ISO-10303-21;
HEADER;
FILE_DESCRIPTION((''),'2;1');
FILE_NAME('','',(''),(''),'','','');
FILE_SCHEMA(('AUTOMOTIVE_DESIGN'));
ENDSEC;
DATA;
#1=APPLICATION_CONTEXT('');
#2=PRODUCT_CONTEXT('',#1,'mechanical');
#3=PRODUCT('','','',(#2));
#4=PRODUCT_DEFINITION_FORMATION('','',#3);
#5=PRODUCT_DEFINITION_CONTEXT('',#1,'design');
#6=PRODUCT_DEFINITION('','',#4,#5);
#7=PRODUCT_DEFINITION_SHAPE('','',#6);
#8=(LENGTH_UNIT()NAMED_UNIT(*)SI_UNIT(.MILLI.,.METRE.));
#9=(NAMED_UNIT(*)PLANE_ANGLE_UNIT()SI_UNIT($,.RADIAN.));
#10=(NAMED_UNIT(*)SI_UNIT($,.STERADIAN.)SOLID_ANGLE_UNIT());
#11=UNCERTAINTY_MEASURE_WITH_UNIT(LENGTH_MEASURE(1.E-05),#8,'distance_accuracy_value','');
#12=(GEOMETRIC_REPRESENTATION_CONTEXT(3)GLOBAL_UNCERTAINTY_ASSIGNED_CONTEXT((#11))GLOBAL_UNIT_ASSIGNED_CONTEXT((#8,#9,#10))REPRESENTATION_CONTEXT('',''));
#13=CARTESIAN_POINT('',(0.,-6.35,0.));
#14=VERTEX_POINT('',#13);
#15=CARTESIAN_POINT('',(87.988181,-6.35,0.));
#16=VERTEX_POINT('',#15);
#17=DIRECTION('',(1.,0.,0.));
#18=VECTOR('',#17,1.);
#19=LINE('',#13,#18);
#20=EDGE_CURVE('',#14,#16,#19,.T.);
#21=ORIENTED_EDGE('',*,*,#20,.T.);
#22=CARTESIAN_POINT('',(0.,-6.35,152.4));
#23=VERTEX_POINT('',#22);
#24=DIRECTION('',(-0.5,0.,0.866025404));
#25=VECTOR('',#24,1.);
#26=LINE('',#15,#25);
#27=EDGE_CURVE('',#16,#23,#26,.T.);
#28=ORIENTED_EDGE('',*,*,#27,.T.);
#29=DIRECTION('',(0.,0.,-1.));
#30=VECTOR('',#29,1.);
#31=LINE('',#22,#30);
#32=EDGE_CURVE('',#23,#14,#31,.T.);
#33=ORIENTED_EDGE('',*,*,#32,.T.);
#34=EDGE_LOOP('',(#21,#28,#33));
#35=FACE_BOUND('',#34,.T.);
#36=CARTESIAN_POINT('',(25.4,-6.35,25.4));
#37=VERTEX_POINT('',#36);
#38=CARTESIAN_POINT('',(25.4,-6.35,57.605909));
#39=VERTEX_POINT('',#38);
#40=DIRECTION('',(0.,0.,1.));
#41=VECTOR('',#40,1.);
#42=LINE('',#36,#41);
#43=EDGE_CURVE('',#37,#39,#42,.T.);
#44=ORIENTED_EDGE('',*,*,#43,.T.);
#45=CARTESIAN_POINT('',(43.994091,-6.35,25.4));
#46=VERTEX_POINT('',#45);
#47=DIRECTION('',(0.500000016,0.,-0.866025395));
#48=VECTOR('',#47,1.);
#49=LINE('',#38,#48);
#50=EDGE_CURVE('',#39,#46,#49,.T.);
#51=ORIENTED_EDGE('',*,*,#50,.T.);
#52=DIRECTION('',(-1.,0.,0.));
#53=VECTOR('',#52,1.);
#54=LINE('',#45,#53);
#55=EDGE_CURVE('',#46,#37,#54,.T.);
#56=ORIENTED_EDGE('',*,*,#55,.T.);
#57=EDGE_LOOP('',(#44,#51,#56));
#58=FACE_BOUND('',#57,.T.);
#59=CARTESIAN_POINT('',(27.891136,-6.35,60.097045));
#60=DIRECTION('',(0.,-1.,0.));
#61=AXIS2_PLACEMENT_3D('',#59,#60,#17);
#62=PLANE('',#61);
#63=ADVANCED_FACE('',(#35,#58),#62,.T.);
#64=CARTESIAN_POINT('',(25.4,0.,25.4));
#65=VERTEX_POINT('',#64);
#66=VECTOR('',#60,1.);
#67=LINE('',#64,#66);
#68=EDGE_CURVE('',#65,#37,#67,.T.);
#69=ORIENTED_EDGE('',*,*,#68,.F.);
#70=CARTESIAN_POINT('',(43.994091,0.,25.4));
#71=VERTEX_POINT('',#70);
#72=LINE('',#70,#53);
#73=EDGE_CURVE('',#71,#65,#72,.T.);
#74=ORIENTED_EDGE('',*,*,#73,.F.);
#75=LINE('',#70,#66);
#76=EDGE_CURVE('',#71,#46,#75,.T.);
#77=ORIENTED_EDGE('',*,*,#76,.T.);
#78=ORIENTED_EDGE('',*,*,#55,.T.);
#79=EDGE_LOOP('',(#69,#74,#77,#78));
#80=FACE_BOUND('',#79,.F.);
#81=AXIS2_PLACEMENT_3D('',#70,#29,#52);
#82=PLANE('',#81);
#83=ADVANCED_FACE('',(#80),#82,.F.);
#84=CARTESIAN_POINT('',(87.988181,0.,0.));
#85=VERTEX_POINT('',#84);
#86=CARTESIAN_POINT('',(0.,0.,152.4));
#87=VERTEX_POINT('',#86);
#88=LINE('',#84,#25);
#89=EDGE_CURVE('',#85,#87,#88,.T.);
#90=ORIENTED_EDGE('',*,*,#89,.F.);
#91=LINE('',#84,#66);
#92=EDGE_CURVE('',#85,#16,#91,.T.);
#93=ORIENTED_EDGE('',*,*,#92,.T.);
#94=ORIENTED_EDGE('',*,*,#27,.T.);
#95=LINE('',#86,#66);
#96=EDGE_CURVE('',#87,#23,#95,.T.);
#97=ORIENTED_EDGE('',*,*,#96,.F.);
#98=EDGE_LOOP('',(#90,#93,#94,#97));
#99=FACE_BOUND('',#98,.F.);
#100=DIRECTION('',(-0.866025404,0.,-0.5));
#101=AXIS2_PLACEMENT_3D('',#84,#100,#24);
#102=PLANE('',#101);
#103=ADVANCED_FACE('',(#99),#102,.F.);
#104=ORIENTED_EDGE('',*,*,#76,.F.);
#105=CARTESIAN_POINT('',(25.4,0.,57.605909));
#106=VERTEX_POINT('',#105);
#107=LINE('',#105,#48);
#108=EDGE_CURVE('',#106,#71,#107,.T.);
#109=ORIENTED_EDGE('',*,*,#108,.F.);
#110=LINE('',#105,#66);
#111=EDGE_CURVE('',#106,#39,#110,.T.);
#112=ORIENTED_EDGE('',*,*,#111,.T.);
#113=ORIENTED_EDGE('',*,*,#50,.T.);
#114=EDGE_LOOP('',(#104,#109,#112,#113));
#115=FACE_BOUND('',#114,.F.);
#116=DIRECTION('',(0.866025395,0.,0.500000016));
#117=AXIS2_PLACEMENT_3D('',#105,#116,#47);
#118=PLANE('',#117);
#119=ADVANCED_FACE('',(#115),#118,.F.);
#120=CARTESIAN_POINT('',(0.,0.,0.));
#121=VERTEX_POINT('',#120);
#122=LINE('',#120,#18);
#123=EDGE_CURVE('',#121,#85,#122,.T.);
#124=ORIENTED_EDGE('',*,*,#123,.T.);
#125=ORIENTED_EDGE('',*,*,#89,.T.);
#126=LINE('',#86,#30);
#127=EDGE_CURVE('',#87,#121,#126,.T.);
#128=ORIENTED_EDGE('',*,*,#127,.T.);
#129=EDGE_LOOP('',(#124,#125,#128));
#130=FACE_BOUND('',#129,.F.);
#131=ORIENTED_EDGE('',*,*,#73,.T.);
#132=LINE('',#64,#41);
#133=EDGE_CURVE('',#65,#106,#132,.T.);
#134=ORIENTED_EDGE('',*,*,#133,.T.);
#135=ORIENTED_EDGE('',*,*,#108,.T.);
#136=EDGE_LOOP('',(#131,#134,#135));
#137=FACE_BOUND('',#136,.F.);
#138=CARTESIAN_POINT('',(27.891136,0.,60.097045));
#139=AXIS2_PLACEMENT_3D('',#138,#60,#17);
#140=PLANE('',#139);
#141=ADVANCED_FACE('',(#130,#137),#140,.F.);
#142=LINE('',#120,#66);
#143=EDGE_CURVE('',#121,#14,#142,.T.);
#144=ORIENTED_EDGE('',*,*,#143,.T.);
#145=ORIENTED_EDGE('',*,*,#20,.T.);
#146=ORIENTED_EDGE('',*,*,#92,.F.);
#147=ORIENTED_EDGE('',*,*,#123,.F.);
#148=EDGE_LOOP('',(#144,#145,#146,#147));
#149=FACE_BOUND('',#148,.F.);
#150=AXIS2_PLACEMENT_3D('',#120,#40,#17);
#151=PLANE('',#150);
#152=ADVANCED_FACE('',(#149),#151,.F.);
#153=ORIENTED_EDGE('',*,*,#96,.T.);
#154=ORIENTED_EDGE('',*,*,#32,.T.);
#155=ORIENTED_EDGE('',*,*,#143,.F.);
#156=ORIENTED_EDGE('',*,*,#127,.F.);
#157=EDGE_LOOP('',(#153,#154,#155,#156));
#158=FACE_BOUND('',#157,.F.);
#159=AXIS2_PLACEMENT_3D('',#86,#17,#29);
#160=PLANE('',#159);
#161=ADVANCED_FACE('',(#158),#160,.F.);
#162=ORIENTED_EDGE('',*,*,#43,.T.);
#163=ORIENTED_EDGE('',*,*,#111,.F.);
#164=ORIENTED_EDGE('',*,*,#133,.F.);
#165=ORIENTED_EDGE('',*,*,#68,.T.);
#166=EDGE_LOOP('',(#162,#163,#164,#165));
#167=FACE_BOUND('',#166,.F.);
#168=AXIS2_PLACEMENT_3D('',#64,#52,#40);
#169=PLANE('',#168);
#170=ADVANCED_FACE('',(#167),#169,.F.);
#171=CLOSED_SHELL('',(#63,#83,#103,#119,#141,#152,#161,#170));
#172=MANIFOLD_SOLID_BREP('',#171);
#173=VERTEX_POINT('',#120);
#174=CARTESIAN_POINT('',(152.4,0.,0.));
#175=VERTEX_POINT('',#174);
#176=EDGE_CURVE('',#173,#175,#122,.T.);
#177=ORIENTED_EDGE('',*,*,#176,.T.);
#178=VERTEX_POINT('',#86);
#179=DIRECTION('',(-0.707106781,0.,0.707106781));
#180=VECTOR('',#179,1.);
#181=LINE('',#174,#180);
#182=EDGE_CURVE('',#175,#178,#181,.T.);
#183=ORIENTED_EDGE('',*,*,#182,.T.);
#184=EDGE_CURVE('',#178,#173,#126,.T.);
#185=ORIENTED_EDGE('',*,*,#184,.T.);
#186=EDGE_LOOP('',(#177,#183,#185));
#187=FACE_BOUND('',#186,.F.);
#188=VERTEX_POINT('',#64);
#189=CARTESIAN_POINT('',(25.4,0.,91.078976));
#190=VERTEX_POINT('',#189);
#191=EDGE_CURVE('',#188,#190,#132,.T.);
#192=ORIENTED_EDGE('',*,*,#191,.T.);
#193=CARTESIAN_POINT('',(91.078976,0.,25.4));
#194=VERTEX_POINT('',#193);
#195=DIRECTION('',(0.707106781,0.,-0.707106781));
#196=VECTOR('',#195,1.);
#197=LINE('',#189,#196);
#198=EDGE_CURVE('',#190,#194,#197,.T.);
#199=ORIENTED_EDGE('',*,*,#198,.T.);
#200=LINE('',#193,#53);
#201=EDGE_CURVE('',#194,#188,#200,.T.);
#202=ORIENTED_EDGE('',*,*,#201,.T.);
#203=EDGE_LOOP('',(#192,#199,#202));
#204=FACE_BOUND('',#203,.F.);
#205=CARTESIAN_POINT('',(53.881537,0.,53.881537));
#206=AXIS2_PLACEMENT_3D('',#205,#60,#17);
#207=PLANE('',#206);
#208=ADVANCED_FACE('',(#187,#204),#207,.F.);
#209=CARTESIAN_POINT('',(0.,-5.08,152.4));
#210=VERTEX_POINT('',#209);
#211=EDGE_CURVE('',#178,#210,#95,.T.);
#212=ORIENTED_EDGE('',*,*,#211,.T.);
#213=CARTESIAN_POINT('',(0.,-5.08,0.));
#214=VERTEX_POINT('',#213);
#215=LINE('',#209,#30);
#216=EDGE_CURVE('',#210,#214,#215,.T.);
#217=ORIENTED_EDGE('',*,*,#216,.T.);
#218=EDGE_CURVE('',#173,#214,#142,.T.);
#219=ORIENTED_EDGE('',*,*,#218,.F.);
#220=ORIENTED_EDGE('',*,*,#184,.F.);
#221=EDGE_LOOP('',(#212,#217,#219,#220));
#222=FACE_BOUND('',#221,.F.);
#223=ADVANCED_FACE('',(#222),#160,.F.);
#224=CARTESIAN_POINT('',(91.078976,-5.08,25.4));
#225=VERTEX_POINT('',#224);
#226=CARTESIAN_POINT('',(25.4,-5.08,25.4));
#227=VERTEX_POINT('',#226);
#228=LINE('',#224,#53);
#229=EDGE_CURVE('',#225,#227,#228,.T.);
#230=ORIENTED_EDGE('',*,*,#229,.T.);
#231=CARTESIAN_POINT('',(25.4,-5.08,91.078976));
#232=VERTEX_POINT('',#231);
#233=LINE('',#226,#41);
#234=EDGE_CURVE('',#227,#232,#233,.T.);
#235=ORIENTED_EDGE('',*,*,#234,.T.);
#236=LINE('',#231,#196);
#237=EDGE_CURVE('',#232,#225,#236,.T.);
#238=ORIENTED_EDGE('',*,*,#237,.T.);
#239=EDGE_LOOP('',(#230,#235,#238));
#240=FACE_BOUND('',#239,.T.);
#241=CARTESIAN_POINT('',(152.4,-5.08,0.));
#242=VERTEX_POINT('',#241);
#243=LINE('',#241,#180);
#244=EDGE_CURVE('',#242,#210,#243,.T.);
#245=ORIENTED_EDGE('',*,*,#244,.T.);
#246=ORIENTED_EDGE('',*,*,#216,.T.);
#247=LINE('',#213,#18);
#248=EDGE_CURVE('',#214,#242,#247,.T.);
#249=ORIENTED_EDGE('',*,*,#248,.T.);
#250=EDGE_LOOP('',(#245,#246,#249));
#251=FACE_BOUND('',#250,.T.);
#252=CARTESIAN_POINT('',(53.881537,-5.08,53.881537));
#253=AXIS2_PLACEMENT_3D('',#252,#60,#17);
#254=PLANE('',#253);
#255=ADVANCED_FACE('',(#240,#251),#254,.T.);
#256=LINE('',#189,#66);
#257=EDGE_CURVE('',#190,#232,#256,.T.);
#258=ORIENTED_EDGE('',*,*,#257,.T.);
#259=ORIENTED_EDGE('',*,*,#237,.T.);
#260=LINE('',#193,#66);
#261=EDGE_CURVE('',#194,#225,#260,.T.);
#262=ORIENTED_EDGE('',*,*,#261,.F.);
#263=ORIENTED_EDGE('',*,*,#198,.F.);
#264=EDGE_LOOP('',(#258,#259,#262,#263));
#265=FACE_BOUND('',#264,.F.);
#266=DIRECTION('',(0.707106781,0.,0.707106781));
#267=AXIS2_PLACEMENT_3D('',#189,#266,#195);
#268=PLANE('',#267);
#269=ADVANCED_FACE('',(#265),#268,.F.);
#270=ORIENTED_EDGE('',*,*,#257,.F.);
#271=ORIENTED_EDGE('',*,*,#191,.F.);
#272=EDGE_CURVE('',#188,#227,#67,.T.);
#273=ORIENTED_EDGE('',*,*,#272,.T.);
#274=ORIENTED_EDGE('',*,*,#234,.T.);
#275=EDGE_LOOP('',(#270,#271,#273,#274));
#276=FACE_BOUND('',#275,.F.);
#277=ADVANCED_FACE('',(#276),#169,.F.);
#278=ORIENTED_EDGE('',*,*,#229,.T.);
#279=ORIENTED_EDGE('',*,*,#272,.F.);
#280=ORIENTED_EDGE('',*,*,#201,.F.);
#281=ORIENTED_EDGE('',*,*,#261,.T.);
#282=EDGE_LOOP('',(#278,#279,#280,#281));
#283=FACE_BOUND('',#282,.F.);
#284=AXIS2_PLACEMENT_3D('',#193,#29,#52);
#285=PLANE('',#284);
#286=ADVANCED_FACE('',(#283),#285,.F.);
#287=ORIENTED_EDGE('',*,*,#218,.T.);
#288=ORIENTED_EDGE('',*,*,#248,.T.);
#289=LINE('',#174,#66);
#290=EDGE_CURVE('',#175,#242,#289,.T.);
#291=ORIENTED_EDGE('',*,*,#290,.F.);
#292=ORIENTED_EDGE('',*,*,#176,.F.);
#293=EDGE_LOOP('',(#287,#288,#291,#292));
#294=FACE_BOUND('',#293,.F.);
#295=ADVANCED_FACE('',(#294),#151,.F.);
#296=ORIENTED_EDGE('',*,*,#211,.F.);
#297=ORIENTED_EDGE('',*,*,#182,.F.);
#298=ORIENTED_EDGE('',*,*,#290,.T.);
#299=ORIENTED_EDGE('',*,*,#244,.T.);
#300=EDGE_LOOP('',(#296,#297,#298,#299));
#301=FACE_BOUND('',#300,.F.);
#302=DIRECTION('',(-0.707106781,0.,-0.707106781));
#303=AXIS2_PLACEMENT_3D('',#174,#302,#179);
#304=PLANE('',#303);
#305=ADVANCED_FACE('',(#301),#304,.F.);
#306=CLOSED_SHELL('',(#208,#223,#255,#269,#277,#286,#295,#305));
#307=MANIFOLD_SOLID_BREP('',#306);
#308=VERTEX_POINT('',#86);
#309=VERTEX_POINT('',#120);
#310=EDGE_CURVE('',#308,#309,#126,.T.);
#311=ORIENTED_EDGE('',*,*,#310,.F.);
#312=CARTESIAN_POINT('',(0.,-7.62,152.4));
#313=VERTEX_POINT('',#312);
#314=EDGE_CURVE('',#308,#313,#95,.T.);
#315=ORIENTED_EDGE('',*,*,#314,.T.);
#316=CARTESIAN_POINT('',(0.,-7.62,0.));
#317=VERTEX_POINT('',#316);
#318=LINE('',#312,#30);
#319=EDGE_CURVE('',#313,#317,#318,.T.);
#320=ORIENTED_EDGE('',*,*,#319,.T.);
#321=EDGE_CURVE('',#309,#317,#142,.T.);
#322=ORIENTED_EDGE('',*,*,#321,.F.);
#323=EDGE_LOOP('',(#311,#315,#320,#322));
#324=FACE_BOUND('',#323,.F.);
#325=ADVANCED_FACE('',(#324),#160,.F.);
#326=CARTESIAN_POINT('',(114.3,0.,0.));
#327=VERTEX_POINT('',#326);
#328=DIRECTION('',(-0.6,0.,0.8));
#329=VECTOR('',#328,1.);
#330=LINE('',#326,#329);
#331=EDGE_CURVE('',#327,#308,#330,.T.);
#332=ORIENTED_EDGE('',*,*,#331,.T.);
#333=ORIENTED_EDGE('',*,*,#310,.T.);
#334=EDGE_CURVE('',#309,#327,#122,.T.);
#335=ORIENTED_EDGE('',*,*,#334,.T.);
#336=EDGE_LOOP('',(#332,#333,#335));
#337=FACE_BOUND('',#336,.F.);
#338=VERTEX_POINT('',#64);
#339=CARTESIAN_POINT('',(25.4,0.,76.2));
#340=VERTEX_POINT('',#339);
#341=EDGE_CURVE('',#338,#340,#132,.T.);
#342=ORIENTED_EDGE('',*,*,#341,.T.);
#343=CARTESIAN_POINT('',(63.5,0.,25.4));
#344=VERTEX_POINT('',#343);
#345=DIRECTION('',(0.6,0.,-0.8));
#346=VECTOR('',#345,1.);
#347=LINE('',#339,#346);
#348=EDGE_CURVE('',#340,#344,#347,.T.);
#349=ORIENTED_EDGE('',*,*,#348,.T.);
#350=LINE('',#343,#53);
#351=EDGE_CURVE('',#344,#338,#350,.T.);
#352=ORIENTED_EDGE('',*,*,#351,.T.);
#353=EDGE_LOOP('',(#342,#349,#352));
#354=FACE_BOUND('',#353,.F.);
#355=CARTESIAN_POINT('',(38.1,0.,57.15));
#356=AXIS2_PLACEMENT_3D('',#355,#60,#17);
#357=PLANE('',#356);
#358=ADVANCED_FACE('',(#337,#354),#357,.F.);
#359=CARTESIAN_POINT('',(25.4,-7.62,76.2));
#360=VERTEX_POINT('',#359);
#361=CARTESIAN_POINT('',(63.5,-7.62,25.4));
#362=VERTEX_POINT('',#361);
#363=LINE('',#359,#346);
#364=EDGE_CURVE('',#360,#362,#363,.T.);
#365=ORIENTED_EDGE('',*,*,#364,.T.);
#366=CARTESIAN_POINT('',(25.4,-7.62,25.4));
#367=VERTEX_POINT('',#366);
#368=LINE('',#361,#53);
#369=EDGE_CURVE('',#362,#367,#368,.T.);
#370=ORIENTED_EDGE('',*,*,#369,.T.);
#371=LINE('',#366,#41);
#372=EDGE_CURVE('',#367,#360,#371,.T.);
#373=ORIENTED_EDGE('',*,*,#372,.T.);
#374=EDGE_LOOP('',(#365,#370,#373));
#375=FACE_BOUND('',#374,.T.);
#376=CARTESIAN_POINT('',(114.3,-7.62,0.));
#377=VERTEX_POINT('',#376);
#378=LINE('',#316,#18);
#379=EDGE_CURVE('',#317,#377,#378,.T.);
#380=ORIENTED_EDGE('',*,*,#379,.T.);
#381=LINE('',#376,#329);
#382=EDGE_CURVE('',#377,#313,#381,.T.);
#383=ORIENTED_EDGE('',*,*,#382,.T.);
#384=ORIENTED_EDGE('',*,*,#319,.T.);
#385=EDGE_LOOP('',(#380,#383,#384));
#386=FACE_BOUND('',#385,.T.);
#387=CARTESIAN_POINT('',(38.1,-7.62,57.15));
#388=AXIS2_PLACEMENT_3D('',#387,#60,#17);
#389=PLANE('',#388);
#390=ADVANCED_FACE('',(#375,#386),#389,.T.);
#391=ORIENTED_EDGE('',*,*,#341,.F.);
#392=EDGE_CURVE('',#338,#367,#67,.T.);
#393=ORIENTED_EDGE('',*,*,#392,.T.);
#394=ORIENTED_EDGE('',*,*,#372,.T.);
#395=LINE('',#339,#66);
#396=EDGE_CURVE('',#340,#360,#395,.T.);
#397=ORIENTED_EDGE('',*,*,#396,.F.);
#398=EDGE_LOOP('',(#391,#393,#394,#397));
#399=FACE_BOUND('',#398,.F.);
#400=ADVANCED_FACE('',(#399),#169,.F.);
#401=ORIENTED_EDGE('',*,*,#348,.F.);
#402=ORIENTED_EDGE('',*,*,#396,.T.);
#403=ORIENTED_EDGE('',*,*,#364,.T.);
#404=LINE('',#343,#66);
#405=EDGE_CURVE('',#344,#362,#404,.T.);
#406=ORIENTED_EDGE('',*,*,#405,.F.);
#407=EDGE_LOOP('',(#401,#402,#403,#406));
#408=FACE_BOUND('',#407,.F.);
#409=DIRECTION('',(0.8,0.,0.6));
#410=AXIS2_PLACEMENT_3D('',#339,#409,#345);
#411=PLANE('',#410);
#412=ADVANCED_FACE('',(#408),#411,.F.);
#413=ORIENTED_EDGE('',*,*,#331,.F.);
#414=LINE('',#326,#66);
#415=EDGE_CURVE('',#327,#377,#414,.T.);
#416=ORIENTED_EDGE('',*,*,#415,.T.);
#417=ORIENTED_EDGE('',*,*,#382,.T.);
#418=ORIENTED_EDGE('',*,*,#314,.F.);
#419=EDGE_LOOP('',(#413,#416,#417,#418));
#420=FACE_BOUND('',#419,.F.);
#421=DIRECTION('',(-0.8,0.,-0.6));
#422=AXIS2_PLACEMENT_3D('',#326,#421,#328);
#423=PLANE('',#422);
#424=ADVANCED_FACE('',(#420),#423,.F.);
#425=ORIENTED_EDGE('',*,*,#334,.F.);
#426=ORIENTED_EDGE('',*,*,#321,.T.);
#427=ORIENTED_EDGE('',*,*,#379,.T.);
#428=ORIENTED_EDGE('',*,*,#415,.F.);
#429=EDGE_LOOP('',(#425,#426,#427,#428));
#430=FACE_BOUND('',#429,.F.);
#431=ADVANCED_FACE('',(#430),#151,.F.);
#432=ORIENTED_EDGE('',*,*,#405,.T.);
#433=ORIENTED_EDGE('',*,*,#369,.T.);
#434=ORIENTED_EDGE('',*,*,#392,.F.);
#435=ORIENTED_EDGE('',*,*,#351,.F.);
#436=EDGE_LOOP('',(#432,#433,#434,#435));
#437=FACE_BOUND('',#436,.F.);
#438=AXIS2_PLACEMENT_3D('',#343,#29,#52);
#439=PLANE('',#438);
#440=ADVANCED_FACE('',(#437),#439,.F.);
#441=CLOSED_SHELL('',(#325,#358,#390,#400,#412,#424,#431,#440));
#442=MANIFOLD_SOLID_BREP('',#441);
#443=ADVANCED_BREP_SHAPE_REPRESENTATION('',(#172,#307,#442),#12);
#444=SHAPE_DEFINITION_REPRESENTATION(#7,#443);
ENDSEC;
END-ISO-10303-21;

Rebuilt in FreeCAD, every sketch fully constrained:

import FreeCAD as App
import Part
import Sketcher
Q = App.Units.Quantity

doc = App.newDocument("Part")
params = doc.addObject("Spreadsheet::Sheet", "Params")
for row, (alias, value) in enumerate([
    ("sketch1_width", "6 in"),
    ("pad1_length", "0.2 in"),
    ("sketch2_height", "6 in"),
    ("pad2_length", "0.25 in"),
    ("sketch3_height", "6 in"),
    ("sketch3_height2", "2 in"),
    ("sketch3_width", "4.5 in"),
    ("pad3_length", "0.3 in"),
], start=1):
    params.set(f"A{row}", alias)
    params.set(f"B{row}", "=" + value)
    params.setAlias(f"B{row}", alias)

body = doc.addObject("PartDesign::Body", "Body")

sketch1 = doc.addObject("Sketcher::SketchObject", "Sketch")
body.addObject(sketch1)
sketch1.AttachmentSupport = (doc.XZ_Plane, [""])
sketch1.MapMode = "FlatFace"
sketch1.addGeometry([
    Part.LineSegment(App.Vector(0, 152, 0), App.Vector(0, 0, 0)),
    Part.LineSegment(App.Vector(0, 0, 0), App.Vector(152, 0, 0)),
    Part.LineSegment(App.Vector(152, 0, 0), App.Vector(0, 152, 0)),
    Part.LineSegment(App.Vector(25, 91, 0), App.Vector(91, 25, 0)),
    Part.LineSegment(App.Vector(91, 25, 0), App.Vector(25, 25, 0)),
    Part.LineSegment(App.Vector(25, 25, 0), App.Vector(25, 91, 0)),
], False)
sketch1.addConstraint([
    Sketcher.Constraint("Coincident", 0, 2, 1, 1),
    Sketcher.Constraint("Coincident", 1, 2, 2, 1),
    Sketcher.Constraint("Coincident", 2, 2, 0, 1),
    Sketcher.Constraint("Coincident", 3, 2, 4, 1),
    Sketcher.Constraint("Coincident", 4, 2, 5, 1),
    Sketcher.Constraint("Coincident", 5, 2, 3, 1),
    Sketcher.Constraint("Vertical", 0),
    Sketcher.Constraint("Horizontal", 1),
    Sketcher.Constraint("Horizontal", 4),
    Sketcher.Constraint("Vertical", 5),
    Sketcher.Constraint("Coincident", 0, 2, -1, 1),
    Sketcher.Constraint("Parallel", 2, 3),
    Sketcher.Constraint("Equal", 1, 0),
    Sketcher.Constraint("DistanceX", 1, 1, 1, 2, Q("6 in")),
    Sketcher.Constraint("DistanceY", -1, 1, 3, 2, Q("1 in")),
    Sketcher.Constraint("DistanceX", -1, 1, 4, 2, Q("1 in")),
    Sketcher.Constraint("Distance", 3, Q("92.884099 mm")),
])
sketch1.setExpression("Constraints[13]", "Params.sketch1_width")
pad1 = doc.addObject("PartDesign::Pad", "Pad")
body.addObject(pad1)
pad1.Profile = sketch1
pad1.setExpression("Length", "Params.pad1_length")
body2 = doc.addObject("PartDesign::Body", "Body001")

sketch2 = doc.addObject("Sketcher::SketchObject", "Sketch001")
body2.addObject(sketch2)
sketch2.AttachmentSupport = (doc.getObject("XZ_Plane001"), [""])
sketch2.MapMode = "FlatFace"
sketch2.addGeometry([
    Part.LineSegment(App.Vector(0, 152, 0), App.Vector(0, 0, 0)),
    Part.LineSegment(App.Vector(0, 0, 0), App.Vector(88, 0, 0)),
    Part.LineSegment(App.Vector(88, 0, 0), App.Vector(0, 152, 0)),
    Part.LineSegment(App.Vector(25, 58, 0), App.Vector(44, 25, 0)),
    Part.LineSegment(App.Vector(44, 25, 0), App.Vector(25, 25, 0)),
    Part.LineSegment(App.Vector(25, 25, 0), App.Vector(25, 58, 0)),
], False)
sketch2.addConstraint([
    Sketcher.Constraint("Coincident", 0, 2, 1, 1),
    Sketcher.Constraint("Coincident", 1, 2, 2, 1),
    Sketcher.Constraint("Coincident", 2, 2, 0, 1),
    Sketcher.Constraint("Coincident", 3, 2, 4, 1),
    Sketcher.Constraint("Coincident", 4, 2, 5, 1),
    Sketcher.Constraint("Coincident", 5, 2, 3, 1),
    Sketcher.Constraint("Vertical", 0),
    Sketcher.Constraint("Horizontal", 1),
    Sketcher.Constraint("Horizontal", 4),
    Sketcher.Constraint("Vertical", 5),
    Sketcher.Constraint("Coincident", 0, 2, -1, 1),
    Sketcher.Constraint("Parallel", 2, 3),
    Sketcher.Constraint("DistanceY", 0, 2, 0, 1, Q("6 in")),
    Sketcher.Constraint("DistanceY", -1, 1, 3, 2, Q("1 in")),
    Sketcher.Constraint("DistanceX", -1, 1, 4, 2, Q("1 in")),
    Sketcher.Constraint("Angle", 2, Q("120 deg")),
    Sketcher.Constraint("DistanceX", 4, 2, 4, 1, Q("18.594091 mm")),
])
sketch2.setExpression("Constraints[12]", "Params.sketch2_height")
pad2 = doc.addObject("PartDesign::Pad", "Pad001")
body2.addObject(pad2)
pad2.Profile = sketch2
pad2.setExpression("Length", "Params.pad2_length")
body3 = doc.addObject("PartDesign::Body", "Body002")

sketch3 = doc.addObject("Sketcher::SketchObject", "Sketch002")
body3.addObject(sketch3)
sketch3.AttachmentSupport = (doc.getObject("XZ_Plane002"), [""])
sketch3.MapMode = "FlatFace"
sketch3.addGeometry([
    Part.LineSegment(App.Vector(0, 152, 0), App.Vector(0, 0, 0)),
    Part.LineSegment(App.Vector(0, 0, 0), App.Vector(114, 0, 0)),
    Part.LineSegment(App.Vector(114, 0, 0), App.Vector(0, 152, 0)),
    Part.LineSegment(App.Vector(25, 76, 0), App.Vector(64, 25, 0)),
    Part.LineSegment(App.Vector(64, 25, 0), App.Vector(25, 25, 0)),
    Part.LineSegment(App.Vector(25, 25, 0), App.Vector(25, 76, 0)),
], False)
sketch3.addConstraint([
    Sketcher.Constraint("Coincident", 0, 2, 1, 1),
    Sketcher.Constraint("Coincident", 1, 2, 2, 1),
    Sketcher.Constraint("Coincident", 2, 2, 0, 1),
    Sketcher.Constraint("Coincident", 3, 2, 4, 1),
    Sketcher.Constraint("Coincident", 4, 2, 5, 1),
    Sketcher.Constraint("Coincident", 5, 2, 3, 1),
    Sketcher.Constraint("Vertical", 0),
    Sketcher.Constraint("Horizontal", 1),
    Sketcher.Constraint("Horizontal", 4),
    Sketcher.Constraint("Vertical", 5),
    Sketcher.Constraint("Coincident", 0, 2, -1, 1),
    Sketcher.Constraint("Parallel", 2, 3),
    Sketcher.Constraint("DistanceY", 0, 2, 0, 1, Q("6 in")),
    Sketcher.Constraint("DistanceY", 5, 1, 5, 2, Q("2 in")),
    Sketcher.Constraint("DistanceX", 1, 1, 1, 2, Q("4.5 in")),
    Sketcher.Constraint("DistanceY", -1, 1, 3, 2, Q("1 in")),
    Sketcher.Constraint("DistanceX", -1, 1, 4, 2, Q("1 in")),
])
sketch3.setExpression("Constraints[12]", "Params.sketch3_height")
sketch3.setExpression("Constraints[13]", "Params.sketch3_height2")
sketch3.setExpression("Constraints[14]", "Params.sketch3_width")
pad3 = doc.addObject("PartDesign::Pad", "Pad002")
body3.addObject(pad3)
pad3.Profile = sketch3
pad3.setExpression("Length", "Params.pad3_length")

doc.recompute()
